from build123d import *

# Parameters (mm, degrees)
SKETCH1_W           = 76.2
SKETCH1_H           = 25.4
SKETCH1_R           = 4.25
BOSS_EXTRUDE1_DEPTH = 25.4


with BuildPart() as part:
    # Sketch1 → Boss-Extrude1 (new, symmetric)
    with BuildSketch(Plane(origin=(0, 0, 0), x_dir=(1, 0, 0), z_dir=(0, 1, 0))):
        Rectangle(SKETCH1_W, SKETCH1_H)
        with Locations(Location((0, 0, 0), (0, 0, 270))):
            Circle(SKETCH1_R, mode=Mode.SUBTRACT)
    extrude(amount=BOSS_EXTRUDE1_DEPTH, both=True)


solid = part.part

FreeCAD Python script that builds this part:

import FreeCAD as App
import Part
import Sketcher
from FreeCAD import Vector
Q = App.Units.Quantity

doc = App.newDocument("Part")
body = doc.addObject("PartDesign::Body", "Body")

# Sketch on XZ plane
sketch1 = body.newObject("Sketcher::SketchObject", "Sketch")
sketch1.AttachmentSupport = (doc.getObject("XZ_Plane"), [""])
sketch1.MapMode = "FlatFace"
sketch1.addGeometry([
    Part.LineSegment(Vector(-38.1, -12.7, 0), Vector(-38.1, 12.7, 0)),  # 0
    Part.LineSegment(Vector(-38.1, 12.7, 0), Vector(38.1, 12.7, 0)),  # 1
    Part.LineSegment(Vector(38.1, 12.7, 0), Vector(38.1, -12.7, 0)),  # 2
    Part.LineSegment(Vector(38.1, -12.7, 0), Vector(-38.1, -12.7, 0)),  # 3
    Part.Circle(Vector(0, 0, 0), Vector(0, 0, 1), 4.2),  # 4
], False)
sketch1.addConstraint([
    Sketcher.Constraint("Coincident", 0, 2, 1, 1),
    Sketcher.Constraint("Coincident", 1, 2, 2, 1),
    Sketcher.Constraint("Coincident", 2, 2, 3, 1),
    Sketcher.Constraint("Coincident", 3, 2, 0, 1),
    Sketcher.Constraint("Vertical", 0),
    Sketcher.Constraint("Horizontal", 1),
    Sketcher.Constraint("Vertical", 2),
    Sketcher.Constraint("Horizontal", 3),
    Sketcher.Constraint("Coincident", 4, 3, -1, 1),
    Sketcher.Constraint("Symmetric", 0, 2, 2, 2, -1, 1),
    Sketcher.Constraint("DistanceX", 1, 1, 1, 2, Q("3 in")),
    Sketcher.Constraint("DistanceY", 0, 1, 0, 2, Q("1 in")),
    Sketcher.Constraint("Diameter", 4, 8.5),
])
pad1 = body.newObject("PartDesign::Pad", "Pad")
pad1.Profile = sketch1
pad1.Length = Q("2 in")
pad1.Midplane = True

doc.recompute()
